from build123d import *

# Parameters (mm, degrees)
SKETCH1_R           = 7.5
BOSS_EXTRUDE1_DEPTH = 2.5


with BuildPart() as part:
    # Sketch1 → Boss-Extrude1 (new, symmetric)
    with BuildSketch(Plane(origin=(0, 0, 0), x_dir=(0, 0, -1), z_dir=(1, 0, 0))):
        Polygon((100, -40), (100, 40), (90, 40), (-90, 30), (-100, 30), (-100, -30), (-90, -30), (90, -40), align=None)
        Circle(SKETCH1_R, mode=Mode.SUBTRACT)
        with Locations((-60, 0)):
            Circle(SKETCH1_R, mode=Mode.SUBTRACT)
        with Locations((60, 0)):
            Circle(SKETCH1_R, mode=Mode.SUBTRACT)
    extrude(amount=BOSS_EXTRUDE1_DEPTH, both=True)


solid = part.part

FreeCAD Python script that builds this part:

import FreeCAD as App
import Part
import Sketcher
from FreeCAD import Vector
Q = App.Units.Quantity


def add_polygon(sketch, points):
    """Adds a closed chain of lines whose ends are joined by coincident constraints."""
    first, n = sketch.GeometryCount, len(points)
    for a, b in zip(points, points[1:] + points[:1]):
        sketch.addGeometry(Part.LineSegment(App.Vector(*a, 0), App.Vector(*b, 0)), False)
    for i in range(n):
        sketch.addConstraint(Sketcher.Constraint("Coincident", first + i, 2, first + (i + 1) % n, 1))

doc = App.newDocument("Part")
body = doc.addObject("PartDesign::Body", "Body")

# Sketch on YZ plane
sketch1 = body.newObject("Sketcher::SketchObject", "Sketch")
sketch1.AttachmentSupport = (doc.getObject("YZ_Plane"), [""])
sketch1.MapMode = "FlatFace"
add_polygon(sketch1, [(-40, -100), (40, -100), (40, -90), (30, 90), (30, 100), (-30, 100), (-30, 90), (-40, -90)])  # lines 0-7
sketch1.addGeometry(Part.Circle(Vector(0, 60, 0), Vector(0, 0, 1), 8), False)  # 8
sketch1.addGeometry(Part.Circle(Vector(0, 0, 0), Vector(0, 0, 1), 8), False)  # 9
sketch1.addGeometry(Part.Circle(Vector(0, -60, 0), Vector(0, 0, 1), 8), False)  # 10
sketch1.addConstraint([
    Sketcher.Constraint("Horizontal", 0),
    Sketcher.Constraint("Vertical", 1),
    Sketcher.Constraint("Vertical", 3),
    Sketcher.Constraint("Horizontal", 4),
    Sketcher.Constraint("Vertical", 5),
    Sketcher.Constraint("Vertical", 7),
    Sketcher.Constraint("Coincident", 9, 3, -1, 1),
    Sketcher.Constraint("Equal", 8, 9),
    Sketcher.Constraint("Equal", 9, 10),
    Sketcher.Constraint("Symmetric", 8, 3, 10, 3, -1, 1),
    Sketcher.Constraint("Symmetric", 2, 2, 5, 2, -2),
    Sketcher.Constraint("Symmetric", 1, 2, 6, 2, -2),
    Sketcher.Constraint("PointOnObject", 8, 3, -2),
    Sketcher.Constraint("Equal", 1, 3),
    Sketcher.Constraint("Diameter", 8, Q("15 mm")),
    Sketcher.Constraint("DistanceX", 0, 1, 0, 2, Q("80 mm")),
    Sketcher.Constraint("DistanceX", 4, 2, 4, 1, Q("60 mm")),
    Sketcher.Constraint("DistanceY", 1, 1, 1, 2, Q("10 mm")),
    Sketcher.Constraint("DistanceY", -1, 1, 8, 3, Q("60 mm")),
    Sketcher.Constraint("DistanceY", 0, 2, -1, 1, Q("100 mm")),
    Sketcher.Constraint("DistanceY", -1, 1, 2, 2, Q("90 mm")),
])
pad1 = body.newObject("PartDesign::Pad", "Pad")
pad1.Profile = sketch1
pad1.Length = 5
pad1.Midplane = True

doc.recompute()
